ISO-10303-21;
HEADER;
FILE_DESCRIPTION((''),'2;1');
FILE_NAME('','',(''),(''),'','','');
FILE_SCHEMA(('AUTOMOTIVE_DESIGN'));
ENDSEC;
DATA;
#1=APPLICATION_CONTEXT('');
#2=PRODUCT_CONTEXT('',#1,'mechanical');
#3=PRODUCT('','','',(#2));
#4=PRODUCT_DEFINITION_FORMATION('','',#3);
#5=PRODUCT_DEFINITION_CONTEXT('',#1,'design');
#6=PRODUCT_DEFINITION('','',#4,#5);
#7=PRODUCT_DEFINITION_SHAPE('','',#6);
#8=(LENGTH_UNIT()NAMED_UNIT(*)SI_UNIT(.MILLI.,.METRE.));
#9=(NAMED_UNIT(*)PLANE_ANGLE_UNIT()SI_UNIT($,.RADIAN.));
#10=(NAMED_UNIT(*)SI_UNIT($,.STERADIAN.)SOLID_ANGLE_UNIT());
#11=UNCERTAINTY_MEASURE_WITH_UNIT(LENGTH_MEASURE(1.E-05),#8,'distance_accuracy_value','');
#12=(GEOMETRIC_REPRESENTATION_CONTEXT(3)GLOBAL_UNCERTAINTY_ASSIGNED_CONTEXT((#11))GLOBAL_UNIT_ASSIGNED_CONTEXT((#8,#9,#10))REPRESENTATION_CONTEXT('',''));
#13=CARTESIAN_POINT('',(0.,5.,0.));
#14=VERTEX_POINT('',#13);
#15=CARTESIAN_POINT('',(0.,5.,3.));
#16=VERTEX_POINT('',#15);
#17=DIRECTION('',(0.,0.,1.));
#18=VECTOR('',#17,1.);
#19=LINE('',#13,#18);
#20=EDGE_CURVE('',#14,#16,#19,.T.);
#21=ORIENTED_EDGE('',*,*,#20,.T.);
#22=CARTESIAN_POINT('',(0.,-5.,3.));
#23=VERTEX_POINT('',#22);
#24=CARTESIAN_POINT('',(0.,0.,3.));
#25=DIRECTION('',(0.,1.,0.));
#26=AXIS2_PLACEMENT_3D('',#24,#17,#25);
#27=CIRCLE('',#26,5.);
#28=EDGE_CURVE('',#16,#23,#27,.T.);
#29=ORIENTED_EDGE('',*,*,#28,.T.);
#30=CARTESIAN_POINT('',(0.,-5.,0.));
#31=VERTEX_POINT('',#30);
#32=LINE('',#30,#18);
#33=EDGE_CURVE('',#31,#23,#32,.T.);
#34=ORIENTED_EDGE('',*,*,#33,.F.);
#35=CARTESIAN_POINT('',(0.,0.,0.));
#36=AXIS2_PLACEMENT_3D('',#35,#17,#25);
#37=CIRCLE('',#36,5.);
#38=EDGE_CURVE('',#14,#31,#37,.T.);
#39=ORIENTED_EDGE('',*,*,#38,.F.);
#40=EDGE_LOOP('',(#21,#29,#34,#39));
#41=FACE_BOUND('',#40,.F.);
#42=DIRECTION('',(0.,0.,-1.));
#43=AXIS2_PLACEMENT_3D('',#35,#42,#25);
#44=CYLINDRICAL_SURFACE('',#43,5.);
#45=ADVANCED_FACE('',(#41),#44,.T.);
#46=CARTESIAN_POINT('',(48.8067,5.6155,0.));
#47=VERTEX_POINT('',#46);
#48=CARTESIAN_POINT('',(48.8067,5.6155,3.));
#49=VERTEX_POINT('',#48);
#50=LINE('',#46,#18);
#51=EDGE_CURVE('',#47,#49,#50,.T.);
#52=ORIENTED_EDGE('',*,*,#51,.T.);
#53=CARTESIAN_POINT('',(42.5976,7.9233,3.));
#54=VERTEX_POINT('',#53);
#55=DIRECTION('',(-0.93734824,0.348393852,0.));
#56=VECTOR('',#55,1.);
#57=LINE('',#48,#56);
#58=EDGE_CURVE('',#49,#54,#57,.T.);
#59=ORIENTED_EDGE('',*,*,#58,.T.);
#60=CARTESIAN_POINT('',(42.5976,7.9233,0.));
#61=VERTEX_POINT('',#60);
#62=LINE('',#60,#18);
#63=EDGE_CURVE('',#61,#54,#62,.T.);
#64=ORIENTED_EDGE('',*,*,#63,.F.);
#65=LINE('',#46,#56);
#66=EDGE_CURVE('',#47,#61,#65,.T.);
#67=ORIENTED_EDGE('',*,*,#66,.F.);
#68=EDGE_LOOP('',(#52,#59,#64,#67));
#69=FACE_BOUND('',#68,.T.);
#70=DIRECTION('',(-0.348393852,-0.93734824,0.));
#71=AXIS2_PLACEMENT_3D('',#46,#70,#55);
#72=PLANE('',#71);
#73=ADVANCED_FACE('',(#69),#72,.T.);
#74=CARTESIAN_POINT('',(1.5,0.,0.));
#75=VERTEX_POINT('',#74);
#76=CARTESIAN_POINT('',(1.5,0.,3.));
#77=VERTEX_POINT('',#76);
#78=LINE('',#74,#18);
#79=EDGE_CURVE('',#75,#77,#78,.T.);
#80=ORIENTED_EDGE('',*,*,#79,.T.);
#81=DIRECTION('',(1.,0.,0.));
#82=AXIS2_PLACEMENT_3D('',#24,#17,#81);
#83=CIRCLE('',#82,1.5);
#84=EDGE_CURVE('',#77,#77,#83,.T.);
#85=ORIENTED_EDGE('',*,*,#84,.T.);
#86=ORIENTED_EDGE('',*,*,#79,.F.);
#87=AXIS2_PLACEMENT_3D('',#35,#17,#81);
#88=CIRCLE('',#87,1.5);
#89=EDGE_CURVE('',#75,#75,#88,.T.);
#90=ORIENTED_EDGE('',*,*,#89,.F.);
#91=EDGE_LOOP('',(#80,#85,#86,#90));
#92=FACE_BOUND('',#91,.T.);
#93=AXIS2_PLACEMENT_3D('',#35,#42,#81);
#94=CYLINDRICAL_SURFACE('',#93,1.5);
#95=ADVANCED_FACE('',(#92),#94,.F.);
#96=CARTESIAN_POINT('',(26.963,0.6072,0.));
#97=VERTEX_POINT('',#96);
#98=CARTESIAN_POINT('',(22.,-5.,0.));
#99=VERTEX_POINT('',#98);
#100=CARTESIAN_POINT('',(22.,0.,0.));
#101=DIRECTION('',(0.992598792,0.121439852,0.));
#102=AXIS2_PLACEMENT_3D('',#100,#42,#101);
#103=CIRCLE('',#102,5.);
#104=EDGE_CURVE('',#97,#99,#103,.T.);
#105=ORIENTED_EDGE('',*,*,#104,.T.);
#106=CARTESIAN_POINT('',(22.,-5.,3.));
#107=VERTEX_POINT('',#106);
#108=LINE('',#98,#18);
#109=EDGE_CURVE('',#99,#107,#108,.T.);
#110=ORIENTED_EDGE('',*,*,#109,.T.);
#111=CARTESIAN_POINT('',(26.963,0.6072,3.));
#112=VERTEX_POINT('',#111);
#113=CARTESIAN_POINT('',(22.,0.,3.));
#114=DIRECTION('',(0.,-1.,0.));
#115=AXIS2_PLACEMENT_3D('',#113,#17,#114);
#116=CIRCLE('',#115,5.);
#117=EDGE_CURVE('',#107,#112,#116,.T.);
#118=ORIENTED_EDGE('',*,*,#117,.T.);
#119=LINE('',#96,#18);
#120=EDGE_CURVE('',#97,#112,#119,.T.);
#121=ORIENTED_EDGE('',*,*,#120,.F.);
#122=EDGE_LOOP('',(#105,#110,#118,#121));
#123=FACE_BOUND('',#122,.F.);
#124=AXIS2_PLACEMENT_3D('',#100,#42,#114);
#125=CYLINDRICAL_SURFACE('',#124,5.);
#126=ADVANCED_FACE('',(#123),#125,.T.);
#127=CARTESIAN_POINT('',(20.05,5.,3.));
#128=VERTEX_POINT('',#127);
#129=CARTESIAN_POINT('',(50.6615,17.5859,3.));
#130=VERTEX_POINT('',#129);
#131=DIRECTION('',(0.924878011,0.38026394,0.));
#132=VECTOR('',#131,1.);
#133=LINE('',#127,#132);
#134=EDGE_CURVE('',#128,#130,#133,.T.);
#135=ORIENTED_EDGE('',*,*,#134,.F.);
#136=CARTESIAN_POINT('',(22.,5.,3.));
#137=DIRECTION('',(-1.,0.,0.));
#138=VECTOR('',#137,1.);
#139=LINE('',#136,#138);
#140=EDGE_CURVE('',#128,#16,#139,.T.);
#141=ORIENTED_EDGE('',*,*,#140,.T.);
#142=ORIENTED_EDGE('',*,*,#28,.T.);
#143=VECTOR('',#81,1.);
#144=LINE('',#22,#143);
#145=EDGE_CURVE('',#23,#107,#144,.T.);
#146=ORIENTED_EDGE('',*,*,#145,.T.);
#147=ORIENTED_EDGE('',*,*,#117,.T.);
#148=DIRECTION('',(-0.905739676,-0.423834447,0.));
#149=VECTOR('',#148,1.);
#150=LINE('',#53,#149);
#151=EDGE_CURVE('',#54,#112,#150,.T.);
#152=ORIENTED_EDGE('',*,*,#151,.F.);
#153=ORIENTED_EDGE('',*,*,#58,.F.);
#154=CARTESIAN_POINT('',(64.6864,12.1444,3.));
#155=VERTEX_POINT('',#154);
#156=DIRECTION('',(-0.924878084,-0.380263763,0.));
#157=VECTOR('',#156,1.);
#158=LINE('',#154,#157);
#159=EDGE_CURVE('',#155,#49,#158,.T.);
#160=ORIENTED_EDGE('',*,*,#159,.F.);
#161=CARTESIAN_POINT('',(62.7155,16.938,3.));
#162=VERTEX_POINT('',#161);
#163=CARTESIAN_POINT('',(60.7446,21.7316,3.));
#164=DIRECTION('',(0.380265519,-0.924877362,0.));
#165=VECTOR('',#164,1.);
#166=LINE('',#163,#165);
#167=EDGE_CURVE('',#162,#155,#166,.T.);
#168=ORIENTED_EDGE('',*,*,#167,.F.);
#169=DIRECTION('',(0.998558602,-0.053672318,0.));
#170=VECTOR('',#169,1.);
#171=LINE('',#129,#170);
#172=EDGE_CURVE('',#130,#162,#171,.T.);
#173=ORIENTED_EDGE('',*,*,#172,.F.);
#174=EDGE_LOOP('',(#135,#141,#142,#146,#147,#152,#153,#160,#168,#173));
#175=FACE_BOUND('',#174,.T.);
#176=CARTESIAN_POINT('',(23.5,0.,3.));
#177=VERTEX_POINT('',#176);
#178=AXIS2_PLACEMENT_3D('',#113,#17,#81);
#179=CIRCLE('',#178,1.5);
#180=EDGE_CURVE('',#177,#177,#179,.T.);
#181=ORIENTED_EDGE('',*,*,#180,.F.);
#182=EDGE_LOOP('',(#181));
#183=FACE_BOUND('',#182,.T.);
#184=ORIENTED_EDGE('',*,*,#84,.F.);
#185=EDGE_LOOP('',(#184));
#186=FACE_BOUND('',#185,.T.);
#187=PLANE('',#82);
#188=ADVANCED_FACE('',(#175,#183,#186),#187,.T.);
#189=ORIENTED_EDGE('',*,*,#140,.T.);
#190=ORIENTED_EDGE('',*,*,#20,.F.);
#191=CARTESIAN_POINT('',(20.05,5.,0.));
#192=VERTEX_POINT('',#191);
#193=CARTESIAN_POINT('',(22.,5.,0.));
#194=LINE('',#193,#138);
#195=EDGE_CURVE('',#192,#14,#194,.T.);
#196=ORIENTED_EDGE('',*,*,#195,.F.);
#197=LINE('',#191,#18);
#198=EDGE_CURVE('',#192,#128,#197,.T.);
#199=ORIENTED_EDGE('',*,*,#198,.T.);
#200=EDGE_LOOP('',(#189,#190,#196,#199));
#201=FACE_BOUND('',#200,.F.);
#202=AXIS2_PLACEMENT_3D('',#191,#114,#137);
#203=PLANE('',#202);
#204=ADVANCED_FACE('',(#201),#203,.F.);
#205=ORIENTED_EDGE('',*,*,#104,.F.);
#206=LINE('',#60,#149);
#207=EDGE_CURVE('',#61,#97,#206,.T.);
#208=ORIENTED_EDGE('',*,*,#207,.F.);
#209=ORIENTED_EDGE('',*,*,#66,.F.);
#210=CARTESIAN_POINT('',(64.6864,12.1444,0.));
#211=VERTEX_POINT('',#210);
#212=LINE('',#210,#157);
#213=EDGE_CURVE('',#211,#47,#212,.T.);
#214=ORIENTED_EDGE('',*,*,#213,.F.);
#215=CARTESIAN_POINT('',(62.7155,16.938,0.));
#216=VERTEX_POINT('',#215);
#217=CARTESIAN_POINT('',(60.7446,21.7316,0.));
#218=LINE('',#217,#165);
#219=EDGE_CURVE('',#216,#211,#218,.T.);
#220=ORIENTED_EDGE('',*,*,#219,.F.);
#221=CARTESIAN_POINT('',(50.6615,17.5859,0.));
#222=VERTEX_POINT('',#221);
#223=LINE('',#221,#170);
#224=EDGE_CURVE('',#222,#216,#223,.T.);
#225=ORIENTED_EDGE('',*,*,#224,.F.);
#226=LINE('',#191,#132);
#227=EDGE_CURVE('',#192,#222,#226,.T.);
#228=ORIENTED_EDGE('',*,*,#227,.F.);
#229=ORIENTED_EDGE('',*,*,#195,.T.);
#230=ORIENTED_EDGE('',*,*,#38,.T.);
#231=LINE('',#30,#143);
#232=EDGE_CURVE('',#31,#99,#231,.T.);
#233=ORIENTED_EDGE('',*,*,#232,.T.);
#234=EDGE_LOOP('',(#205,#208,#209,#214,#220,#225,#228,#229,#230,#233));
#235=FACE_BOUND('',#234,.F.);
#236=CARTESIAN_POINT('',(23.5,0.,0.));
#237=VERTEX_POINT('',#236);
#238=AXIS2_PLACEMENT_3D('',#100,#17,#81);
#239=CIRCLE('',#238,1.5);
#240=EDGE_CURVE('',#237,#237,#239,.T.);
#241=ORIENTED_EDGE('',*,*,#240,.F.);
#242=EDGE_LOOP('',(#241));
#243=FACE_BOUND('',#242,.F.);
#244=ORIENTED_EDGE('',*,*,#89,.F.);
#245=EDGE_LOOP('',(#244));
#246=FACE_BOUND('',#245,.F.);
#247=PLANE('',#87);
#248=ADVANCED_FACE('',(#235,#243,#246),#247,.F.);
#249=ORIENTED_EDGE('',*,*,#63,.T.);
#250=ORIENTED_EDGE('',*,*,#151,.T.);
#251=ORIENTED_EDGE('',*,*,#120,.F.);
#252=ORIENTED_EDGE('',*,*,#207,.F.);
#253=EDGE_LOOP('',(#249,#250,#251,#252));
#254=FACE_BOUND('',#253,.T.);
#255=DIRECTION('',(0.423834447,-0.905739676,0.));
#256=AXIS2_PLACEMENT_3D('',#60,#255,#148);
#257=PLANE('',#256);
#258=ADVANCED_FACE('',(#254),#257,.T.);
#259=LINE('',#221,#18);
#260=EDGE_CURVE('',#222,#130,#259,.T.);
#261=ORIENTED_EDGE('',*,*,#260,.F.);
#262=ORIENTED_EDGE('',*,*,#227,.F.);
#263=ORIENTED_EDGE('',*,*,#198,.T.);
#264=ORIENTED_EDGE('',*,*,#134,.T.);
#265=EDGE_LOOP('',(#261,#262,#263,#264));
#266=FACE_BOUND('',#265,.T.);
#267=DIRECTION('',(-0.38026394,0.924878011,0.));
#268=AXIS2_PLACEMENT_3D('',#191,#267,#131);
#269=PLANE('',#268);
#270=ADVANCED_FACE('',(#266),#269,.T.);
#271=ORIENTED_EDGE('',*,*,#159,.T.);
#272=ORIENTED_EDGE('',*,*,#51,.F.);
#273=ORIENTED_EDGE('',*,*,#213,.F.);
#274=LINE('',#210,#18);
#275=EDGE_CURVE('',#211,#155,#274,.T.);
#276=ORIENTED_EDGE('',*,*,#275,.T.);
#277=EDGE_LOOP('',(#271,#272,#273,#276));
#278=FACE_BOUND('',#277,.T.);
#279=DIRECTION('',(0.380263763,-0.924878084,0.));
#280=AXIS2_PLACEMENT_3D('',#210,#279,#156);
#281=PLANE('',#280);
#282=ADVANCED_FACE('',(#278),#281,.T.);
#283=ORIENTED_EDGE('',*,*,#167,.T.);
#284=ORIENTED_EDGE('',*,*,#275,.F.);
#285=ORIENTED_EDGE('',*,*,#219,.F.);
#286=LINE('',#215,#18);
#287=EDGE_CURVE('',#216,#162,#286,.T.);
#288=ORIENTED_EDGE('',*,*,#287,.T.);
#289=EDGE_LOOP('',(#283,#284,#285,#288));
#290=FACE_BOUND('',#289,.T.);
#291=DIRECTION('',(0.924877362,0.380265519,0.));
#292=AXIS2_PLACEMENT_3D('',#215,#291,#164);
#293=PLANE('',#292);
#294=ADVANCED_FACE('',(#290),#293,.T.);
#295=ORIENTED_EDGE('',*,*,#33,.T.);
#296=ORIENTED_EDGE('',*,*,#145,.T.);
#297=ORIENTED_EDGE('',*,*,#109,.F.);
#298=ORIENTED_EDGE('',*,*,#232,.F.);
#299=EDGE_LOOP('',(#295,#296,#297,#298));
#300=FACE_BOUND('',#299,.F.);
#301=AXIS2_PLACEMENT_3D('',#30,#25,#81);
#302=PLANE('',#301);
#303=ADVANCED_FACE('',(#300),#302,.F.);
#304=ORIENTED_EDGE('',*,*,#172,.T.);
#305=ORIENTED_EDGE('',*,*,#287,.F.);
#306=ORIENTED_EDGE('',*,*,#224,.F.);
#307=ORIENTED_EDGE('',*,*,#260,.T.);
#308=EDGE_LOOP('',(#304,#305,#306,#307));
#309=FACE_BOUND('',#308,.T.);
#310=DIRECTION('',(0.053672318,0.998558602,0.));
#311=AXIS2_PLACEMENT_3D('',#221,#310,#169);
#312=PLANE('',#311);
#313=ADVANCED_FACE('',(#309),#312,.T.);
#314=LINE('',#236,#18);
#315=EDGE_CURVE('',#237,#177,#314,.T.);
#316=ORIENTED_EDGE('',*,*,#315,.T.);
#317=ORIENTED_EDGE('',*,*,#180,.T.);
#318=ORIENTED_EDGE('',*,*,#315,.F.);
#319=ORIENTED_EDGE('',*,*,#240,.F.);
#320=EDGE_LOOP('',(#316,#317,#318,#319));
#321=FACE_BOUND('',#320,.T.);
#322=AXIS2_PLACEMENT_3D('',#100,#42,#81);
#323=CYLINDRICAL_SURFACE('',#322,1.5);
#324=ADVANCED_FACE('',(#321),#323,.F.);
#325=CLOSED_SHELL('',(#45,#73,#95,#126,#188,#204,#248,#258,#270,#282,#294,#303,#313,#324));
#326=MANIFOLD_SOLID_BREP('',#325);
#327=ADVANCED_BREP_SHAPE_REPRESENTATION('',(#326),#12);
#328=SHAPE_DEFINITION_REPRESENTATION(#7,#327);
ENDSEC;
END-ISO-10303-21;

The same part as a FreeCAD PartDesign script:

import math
import FreeCAD as App
import Part
import Sketcher
Q = App.Units.Quantity

doc = App.newDocument("Part")
params = doc.addObject("Spreadsheet::Sheet", "Params")
for row, (alias, value) in enumerate([
    ("sketch1_diameter", "3 mm"),
    ("sketch1_radius", "5 mm"),
    ("sketch1_width", "22 mm"),
    ("pad1_length", "3 mm"),
], start=1):
    params.set(f"A{row}", alias)
    params.set(f"B{row}", "=" + value)
    params.setAlias(f"B{row}", alias)

body = doc.addObject("PartDesign::Body", "Body")

sketch1 = body.newObject("Sketcher::SketchObject", "Sketch")
sketch1.AttachmentSupport = (doc.getObject("XY_Plane"), [""])
sketch1.MapMode = "FlatFace"
sketch1.addGeometry(Part.ArcOfCircle(Part.Circle(App.Vector(0, 0, 0), App.Vector(0, 0, 1), 5), math.radians(90), math.radians(270)), False)
sketch1.addGeometry(Part.LineSegment(App.Vector(0, -5, 0), App.Vector(22, -5, 0)), False)
sketch1.addGeometry(Part.ArcOfCircle(Part.Circle(App.Vector(22, 0, 0), App.Vector(0, 0, 1), 5), math.radians(-90), math.radians(7)), False)
sketch1.addGeometry(Part.LineSegment(App.Vector(27, 0.6, 0), App.Vector(42.6, 7.9, 0)), False)
sketch1.addGeometry(Part.LineSegment(App.Vector(42.6, 7.9, 0), App.Vector(48.8, 5.6, 0)), False)
sketch1.addGeometry(Part.LineSegment(App.Vector(48.8, 5.6, 0), App.Vector(64.7, 12.1, 0)), False)
sketch1.addGeometry(Part.LineSegment(App.Vector(64.7, 12.1, 0), App.Vector(62.7, 16.9, 0)), False)
sketch1.addGeometry(Part.LineSegment(App.Vector(62.7, 16.9, 0), App.Vector(50.7, 17.6, 0)), False)
sketch1.addGeometry(Part.LineSegment(App.Vector(50.7, 17.6, 0), App.Vector(20.1, 5, 0)), False)
sketch1.addGeometry(Part.LineSegment(App.Vector(20.1, 5, 0), App.Vector(0, 5, 0)), False)
sketch1.addGeometry(Part.Circle(App.Vector(0, 0, 0), App.Vector(0, 0, 1), 1.5), False)
sketch1.addGeometry(Part.Circle(App.Vector(22, 0, 0), App.Vector(0, 0, 1), 1.5), False)
sketch1.addConstraint(Sketcher.Constraint("Tangent", 0, 2, 1, 1))
sketch1.addConstraint(Sketcher.Constraint("Tangent", 1, 2, 2, 1))
sketch1.addConstraint(Sketcher.Constraint("Coincident", 2, 2, 3, 1))
sketch1.addConstraint(Sketcher.Constraint("Coincident", 3, 2, 4, 1))
sketch1.addConstraint(Sketcher.Constraint("Coincident", 4, 2, 5, 1))
sketch1.addConstraint(Sketcher.Constraint("Coincident", 5, 2, 6, 1))
sketch1.addConstraint(Sketcher.Constraint("Coincident", 6, 2, 7, 1))
sketch1.addConstraint(Sketcher.Constraint("Coincident", 7, 2, 8, 1))
sketch1.addConstraint(Sketcher.Constraint("Coincident", 8, 2, 9, 1))
sketch1.addConstraint(Sketcher.Constraint("Tangent", 9, 2, 0, 1))
sketch1.addConstraint(Sketcher.Constraint("Horizontal", 1))
sketch1.addConstraint(Sketcher.Constraint("Horizontal", 9))
sketch1.addConstraint(Sketcher.Constraint("Coincident", 0, 3, -1, 1))
sketch1.addConstraint(Sketcher.Constraint("Coincident", 10, 3, -1, 1))
sketch1.addConstraint(Sketcher.Constraint("Coincident", 11, 3, 2, 3))
sketch1.addConstraint(Sketcher.Constraint("Equal", 0, 2))
sketch1.addConstraint(Sketcher.Constraint("Equal", 10, 11))
sketch1.addConstraint(Sketcher.Constraint("Perpendicular", 5, 6))
sketch1.addConstraint(Sketcher.Constraint("Perpendicular", 6, 8))
sketch1.addConstraint(Sketcher.Constraint("Diameter", 10, 3.0))
sketch1.addConstraint(Sketcher.Constraint("Radius", 0, 5.0))
sketch1.addConstraint(Sketcher.Constraint("DistanceX", 1, 1, 1, 2, 22.0))
sketch1.addConstraint(Sketcher.Constraint("Angle", 8, Q("-157.65 deg")))
sketch1.addConstraint(Sketcher.Constraint("DistanceX", 8, 2, 2, 3, 1.95))
sketch1.addConstraint(Sketcher.Constraint("Angle", 4, Q("-20.389 deg")))
sketch1.addConstraint(Sketcher.Constraint("Distance", 4, 6.624))
sketch1.addConstraint(Sketcher.Constraint("Distance", 6, 5.183))
sketch1.addConstraint(Sketcher.Constraint("DistanceX", -1, 1, 2, 2, 26.963))
sketch1.addConstraint(Sketcher.Constraint("DistanceY", -1, 1, 6, 2, 16.938))
sketch1.addConstraint(Sketcher.Constraint("DistanceY", -1, 1, 7, 2, 17.586))
sketch1.addConstraint(Sketcher.Constraint("DistanceY", 2, 2, 3, 2, 7.316))
sketch1.addConstraint(Sketcher.Constraint("DistanceX", 7, 2, 6, 2, 12.054))
sketch1.setExpression("Constraints[19]", "Params.sketch1_diameter")
sketch1.setExpression("Constraints[20]", "Params.sketch1_radius")
sketch1.setExpression("Constraints[21]", "Params.sketch1_width")
pad1 = body.newObject("PartDesign::Pad", "Pad")
pad1.Profile = sketch1
pad1.setExpression("Length", "Params.pad1_length")

doc.recompute()
